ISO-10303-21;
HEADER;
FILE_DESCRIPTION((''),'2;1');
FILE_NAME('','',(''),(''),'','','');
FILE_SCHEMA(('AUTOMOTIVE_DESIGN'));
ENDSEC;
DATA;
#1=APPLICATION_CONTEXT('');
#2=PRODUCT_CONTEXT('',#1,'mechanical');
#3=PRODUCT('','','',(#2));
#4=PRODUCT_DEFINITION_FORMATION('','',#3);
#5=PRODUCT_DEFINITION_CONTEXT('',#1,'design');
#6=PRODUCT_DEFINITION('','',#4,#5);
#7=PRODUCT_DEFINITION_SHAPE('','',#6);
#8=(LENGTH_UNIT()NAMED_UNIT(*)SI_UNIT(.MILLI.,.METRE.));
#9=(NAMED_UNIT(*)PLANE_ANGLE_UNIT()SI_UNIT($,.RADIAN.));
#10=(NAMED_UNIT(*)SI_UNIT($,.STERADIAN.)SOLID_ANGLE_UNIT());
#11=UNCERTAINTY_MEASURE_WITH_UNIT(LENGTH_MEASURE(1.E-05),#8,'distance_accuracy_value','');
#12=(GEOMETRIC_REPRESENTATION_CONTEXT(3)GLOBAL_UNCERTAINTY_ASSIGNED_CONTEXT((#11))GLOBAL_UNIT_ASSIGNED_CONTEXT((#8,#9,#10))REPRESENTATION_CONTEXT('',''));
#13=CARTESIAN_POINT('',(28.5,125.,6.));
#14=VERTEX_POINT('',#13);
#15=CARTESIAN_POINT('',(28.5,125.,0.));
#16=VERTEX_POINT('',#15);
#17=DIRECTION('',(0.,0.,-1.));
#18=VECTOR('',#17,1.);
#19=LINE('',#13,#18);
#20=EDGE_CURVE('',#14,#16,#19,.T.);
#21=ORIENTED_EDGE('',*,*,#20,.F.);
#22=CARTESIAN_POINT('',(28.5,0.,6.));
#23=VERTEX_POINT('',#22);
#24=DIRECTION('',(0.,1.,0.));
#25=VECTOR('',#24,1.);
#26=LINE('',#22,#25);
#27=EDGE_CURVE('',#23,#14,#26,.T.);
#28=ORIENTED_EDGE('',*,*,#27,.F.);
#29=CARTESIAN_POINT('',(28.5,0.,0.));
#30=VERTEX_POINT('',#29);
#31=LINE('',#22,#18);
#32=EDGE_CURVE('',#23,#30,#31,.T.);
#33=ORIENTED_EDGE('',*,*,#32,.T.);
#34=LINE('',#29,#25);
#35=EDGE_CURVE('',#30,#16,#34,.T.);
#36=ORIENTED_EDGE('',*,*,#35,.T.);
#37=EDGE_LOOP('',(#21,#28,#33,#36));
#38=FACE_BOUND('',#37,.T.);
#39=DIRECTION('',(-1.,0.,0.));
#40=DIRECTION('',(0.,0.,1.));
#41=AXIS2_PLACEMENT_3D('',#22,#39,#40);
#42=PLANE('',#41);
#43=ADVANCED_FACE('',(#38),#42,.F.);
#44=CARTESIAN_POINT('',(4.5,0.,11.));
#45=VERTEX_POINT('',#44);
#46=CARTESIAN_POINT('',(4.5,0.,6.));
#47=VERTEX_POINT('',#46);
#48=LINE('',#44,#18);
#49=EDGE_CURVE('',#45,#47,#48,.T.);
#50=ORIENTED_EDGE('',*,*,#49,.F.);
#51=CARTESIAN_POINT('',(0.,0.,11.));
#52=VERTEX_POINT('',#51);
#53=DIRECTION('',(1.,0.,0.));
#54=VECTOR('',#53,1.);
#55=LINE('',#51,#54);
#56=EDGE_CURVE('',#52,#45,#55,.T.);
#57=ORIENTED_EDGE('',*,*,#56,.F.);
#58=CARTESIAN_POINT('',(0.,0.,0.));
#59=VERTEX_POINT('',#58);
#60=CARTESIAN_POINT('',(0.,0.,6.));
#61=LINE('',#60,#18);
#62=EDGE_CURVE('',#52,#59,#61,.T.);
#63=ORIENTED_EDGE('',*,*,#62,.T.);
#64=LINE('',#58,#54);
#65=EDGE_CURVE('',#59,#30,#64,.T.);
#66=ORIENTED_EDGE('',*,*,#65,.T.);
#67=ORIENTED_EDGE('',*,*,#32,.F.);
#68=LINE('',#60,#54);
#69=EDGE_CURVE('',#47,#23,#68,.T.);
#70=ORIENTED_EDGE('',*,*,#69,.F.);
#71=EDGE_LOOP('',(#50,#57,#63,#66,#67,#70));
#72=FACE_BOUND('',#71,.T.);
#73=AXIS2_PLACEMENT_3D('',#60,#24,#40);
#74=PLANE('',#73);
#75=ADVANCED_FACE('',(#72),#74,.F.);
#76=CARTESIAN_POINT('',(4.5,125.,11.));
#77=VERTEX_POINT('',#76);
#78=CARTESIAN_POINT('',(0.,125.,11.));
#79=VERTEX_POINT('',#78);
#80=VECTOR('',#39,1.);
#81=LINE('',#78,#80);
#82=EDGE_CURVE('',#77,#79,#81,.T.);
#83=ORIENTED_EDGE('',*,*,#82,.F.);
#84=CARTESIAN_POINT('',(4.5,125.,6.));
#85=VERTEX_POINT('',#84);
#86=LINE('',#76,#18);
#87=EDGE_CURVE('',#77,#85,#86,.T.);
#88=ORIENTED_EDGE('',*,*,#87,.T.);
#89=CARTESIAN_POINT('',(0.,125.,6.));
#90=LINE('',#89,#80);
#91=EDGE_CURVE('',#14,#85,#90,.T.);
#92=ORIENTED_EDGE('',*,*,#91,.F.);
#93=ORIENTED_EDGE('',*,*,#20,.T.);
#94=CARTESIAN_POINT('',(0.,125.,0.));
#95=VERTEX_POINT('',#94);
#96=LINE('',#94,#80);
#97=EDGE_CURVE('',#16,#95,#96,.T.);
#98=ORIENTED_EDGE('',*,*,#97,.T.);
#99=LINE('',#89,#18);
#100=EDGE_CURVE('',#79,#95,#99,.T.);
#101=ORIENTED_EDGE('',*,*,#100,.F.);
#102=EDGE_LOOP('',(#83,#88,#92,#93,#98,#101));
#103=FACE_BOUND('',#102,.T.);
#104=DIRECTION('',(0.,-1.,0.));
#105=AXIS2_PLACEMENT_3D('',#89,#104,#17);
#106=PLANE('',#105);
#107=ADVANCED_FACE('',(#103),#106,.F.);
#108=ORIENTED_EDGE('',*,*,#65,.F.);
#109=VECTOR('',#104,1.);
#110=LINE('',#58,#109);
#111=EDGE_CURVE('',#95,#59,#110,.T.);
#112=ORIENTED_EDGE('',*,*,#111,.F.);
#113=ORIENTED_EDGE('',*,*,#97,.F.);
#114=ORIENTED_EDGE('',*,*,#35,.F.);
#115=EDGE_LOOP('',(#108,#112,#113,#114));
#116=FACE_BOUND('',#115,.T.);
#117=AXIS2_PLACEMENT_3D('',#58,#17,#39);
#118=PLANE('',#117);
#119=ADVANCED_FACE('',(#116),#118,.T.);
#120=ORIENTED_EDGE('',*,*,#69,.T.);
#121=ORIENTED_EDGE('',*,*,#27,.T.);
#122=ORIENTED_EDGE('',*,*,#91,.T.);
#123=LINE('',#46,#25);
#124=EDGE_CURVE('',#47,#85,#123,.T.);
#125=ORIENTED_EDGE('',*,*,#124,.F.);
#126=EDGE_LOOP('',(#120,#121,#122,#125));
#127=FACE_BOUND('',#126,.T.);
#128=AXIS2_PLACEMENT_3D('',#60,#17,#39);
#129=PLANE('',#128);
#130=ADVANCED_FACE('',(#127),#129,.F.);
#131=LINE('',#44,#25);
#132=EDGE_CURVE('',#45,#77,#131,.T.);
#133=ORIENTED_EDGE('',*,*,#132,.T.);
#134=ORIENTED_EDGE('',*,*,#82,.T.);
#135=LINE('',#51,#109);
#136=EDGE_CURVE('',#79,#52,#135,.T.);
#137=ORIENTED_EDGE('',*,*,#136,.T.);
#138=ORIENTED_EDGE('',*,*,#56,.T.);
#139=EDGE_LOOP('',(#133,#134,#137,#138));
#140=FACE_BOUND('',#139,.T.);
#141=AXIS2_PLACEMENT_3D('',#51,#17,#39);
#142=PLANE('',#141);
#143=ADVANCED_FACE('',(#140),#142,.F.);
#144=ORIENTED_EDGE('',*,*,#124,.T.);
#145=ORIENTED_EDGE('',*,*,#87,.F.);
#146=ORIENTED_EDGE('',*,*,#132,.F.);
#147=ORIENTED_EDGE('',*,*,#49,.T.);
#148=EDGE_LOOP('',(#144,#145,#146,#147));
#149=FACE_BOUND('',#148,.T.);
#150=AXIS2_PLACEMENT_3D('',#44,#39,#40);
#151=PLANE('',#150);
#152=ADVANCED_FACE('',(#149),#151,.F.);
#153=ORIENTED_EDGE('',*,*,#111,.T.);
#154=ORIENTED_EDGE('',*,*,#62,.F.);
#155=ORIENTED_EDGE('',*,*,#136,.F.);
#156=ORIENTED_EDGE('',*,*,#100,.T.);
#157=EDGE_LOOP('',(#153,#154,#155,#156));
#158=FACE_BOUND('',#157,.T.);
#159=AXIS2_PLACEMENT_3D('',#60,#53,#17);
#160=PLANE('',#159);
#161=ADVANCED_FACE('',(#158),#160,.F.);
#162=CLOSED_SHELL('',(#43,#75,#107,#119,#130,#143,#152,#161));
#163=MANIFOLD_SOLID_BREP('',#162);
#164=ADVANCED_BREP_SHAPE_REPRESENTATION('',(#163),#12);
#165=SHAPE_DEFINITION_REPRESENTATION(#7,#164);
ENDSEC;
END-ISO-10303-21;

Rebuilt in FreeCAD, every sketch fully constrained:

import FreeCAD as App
import Part
import Sketcher
Q = App.Units.Quantity


def add_polygon(sketch, points):
    """Adds a closed chain of lines whose ends are joined by coincident constraints."""
    first, n = sketch.GeometryCount, len(points)
    for a, b in zip(points, points[1:] + points[:1]):
        sketch.addGeometry(Part.LineSegment(App.Vector(*a, 0), App.Vector(*b, 0)), False)
    for i in range(n):
        sketch.addConstraint(Sketcher.Constraint("Coincident", first + i, 2, first + (i + 1) % n, 1))

doc = App.newDocument("Part")
params = doc.addObject("Spreadsheet::Sheet", "Params")
for row, (alias, value) in enumerate([
    ("sketch1_height", "125 mm"),
    ("sketch1_width", "28.5 mm"),
    ("pad1_length", "6 mm"),
    ("sketch2_height", "125 mm"),
    ("sketch2_width", "4.5 mm"),
    ("pad2_length", "5 mm"),
], start=1):
    params.set(f"A{row}", alias)
    params.set(f"B{row}", "=" + value)
    params.setAlias(f"B{row}", alias)

body = doc.addObject("PartDesign::Body", "Body")

sketch1 = doc.addObject("Sketcher::SketchObject", "Sketch")
body.addObject(sketch1)
sketch1.AttachmentSupport = (doc.XY_Plane, [""])
sketch1.MapMode = "FlatFace"
add_polygon(sketch1, [(0, 125), (0, 0), (28, 0), (28, 125)])
sketch1.addConstraint([
    Sketcher.Constraint("Vertical", 0),
    Sketcher.Constraint("Horizontal", 1),
    Sketcher.Constraint("Vertical", 2),
    Sketcher.Constraint("Horizontal", 3),
    Sketcher.Constraint("Coincident", 0, 2, -1, 1),
    Sketcher.Constraint("DistanceY", 0, 2, 0, 1, Q("125 mm")),
    Sketcher.Constraint("DistanceX", 1, 1, 1, 2, Q("28.5 mm")),
])
sketch1.setExpression("Constraints[9]", "Params.sketch1_height")
sketch1.setExpression("Constraints[10]", "Params.sketch1_width")
pad1 = doc.addObject("PartDesign::Pad", "Pad")
body.addObject(pad1)
pad1.Profile = sketch1
pad1.setExpression("Length", "Params.pad1_length")

sketch2 = doc.addObject("Sketcher::SketchObject", "Sketch001")
body.addObject(sketch2)
sketch2.AttachmentSupport = (doc.XY_Plane, [""])
sketch2.MapMode = "FlatFace"
sketch2.AttachmentOffset = App.Placement(App.Vector(0, 0, 6), App.Rotation())
add_polygon(sketch2, [(0, 125), (0, 0), (4.5, 0), (4.5, 125)])
sketch2.addConstraint([
    Sketcher.Constraint("Vertical", 0),
    Sketcher.Constraint("Horizontal", 1),
    Sketcher.Constraint("Vertical", 2),
    Sketcher.Constraint("Horizontal", 3),
    Sketcher.Constraint("Coincident", 0, 2, -1, 1),
    Sketcher.Constraint("DistanceY", 0, 2, 0, 1, Q("125 mm")),
    Sketcher.Constraint("DistanceX", 1, 1, 1, 2, Q("4.5 mm")),
])
sketch2.setExpression("Constraints[9]", "Params.sketch2_height")
sketch2.setExpression("Constraints[10]", "Params.sketch2_width")
pad2 = doc.addObject("PartDesign::Pad", "Pad001")
body.addObject(pad2)
pad2.Profile = sketch2
pad2.setExpression("Length", "Params.pad2_length")

doc.recompute()
